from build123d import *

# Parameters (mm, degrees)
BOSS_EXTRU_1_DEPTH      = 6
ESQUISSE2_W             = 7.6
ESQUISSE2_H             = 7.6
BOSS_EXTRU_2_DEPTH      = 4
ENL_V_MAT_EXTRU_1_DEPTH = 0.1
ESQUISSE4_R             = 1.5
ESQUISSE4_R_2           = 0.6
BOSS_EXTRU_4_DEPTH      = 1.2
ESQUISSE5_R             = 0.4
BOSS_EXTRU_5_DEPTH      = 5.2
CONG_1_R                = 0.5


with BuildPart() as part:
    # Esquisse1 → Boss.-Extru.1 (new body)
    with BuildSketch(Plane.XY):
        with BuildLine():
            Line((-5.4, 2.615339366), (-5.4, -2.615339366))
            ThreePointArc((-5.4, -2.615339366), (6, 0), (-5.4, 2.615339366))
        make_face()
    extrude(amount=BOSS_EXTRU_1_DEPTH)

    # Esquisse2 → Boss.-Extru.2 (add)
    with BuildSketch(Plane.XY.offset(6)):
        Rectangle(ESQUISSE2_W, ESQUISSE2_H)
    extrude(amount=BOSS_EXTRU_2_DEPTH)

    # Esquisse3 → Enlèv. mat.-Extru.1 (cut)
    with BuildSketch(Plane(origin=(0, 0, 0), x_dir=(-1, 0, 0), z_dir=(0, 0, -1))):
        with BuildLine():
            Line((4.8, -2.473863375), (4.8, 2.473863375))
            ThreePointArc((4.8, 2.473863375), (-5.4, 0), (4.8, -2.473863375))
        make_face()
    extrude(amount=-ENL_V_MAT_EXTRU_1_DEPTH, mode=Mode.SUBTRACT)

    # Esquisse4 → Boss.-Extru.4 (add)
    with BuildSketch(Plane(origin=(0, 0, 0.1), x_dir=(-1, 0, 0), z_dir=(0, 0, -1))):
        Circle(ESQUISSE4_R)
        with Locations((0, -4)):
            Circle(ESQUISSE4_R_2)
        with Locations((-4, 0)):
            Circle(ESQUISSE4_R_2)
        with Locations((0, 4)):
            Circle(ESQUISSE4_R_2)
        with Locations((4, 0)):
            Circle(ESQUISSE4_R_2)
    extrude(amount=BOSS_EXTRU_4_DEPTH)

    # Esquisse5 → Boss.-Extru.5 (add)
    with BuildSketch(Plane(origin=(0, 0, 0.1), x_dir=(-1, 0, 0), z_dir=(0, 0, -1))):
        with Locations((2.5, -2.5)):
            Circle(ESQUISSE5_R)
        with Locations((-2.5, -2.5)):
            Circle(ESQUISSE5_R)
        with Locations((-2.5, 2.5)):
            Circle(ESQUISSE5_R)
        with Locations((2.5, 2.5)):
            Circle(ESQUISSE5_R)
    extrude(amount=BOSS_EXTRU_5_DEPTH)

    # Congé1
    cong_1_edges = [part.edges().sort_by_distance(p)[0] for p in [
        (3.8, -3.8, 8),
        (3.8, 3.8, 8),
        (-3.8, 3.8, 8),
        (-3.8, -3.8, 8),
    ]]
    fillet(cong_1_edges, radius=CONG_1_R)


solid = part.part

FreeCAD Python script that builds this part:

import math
import FreeCAD as App
import Part
import Sketcher
from FreeCAD import Vector
Q = App.Units.Quantity


def edges_at(feature, points):
    """Names of the edges that pass closest to the given points."""
    edges = feature.Shape.Edges
    near = lambda p: min(range(len(edges)), key=lambda i: edges[i].distToShape(Part.Vertex(*p))[0])
    return sorted({f"Edge{near(p) + 1}" for p in points})

doc = App.newDocument("Part")
params = doc.addObject("Spreadsheet::Sheet", "Params")
for row, (alias, value) in enumerate([
    ("sketch1_radius", "6 mm"),
    ("pad1_length", "6 mm"),
    ("sketch2_width", "7.6 mm"),
    ("pad2_length", "4 mm"),
    ("sketch3_radius", "5.4 mm"),
    ("pocket1_length", "0.1 mm"),
    ("sketch4_diameter", "3 mm"),
    ("sketch4_diameter2", "1.2 mm"),
    ("pad3_length", "1.2 mm"),
    ("sketch5_diameter", "0.8 mm"),
    ("pad4_length", "5.2 mm"),
    ("fillet_radius", "0.5 mm"),
], start=1):
    params.set(f"A{row}", alias)
    params.set(f"B{row}", "=" + value)
    params.setAlias(f"B{row}", alias)

body = doc.addObject("PartDesign::Body", "Body")

# Sketch on XY plane
sketch1 = body.newObject("Sketcher::SketchObject", "Sketch")
sketch1.AttachmentSupport = (doc.getObject("XY_Plane"), [""])
sketch1.MapMode = "FlatFace"
sketch1.addGeometry([
    Part.LineSegment(Vector(-5, 3, 0), Vector(-5, -3, 0)),
    Part.ArcOfCircle(Part.Circle(Vector(0, 0, 0), Vector(0, 0, 1), 6), math.radians(-154), math.radians(154)),
], False)
sketch1.addConstraint([
    Sketcher.Constraint("Coincident", 0, 1, 1, 2),
    Sketcher.Constraint("Coincident", 1, 1, 0, 2),
    Sketcher.Constraint("Vertical", 0),
    Sketcher.Constraint("Coincident", 1, 3, -1, 1),
    Sketcher.Constraint("Radius", 1, Q("6 mm")),
    Sketcher.Constraint("DistanceX", 0, 1, -1, 1, Q("5.4 mm")),
])
sketch1.setExpression("Constraints[4]", "Params.sketch1_radius")
pad1 = body.newObject("PartDesign::Pad", "Pad")
pad1.Profile = sketch1
pad1.setExpression("Length", "Params.pad1_length")

# Sketch on XY plane
sketch2 = body.newObject("Sketcher::SketchObject", "Sketch001")
sketch2.AttachmentSupport = (doc.getObject("XY_Plane"), [""])
sketch2.MapMode = "FlatFace"
sketch2.AttachmentOffset = App.Placement(Vector(0, 0, 6), App.Rotation())
sketch2.addGeometry([
    Part.LineSegment(Vector(-4, 4, 0), Vector(-4, -4, 0)),
    Part.LineSegment(Vector(-4, -4, 0), Vector(4, -4, 0)),
    Part.LineSegment(Vector(4, -4, 0), Vector(4, 4, 0)),
    Part.LineSegment(Vector(4, 4, 0), Vector(-4, 4, 0)),
], False)
sketch2.addConstraint([
    Sketcher.Constraint("Coincident", 0, 2, 1, 1),
    Sketcher.Constraint("Coincident", 1, 2, 2, 1),
    Sketcher.Constraint("Coincident", 2, 2, 3, 1),
    Sketcher.Constraint("Coincident", 3, 2, 0, 1),
    Sketcher.Constraint("Vertical", 0),
    Sketcher.Constraint("Horizontal", 1),
    Sketcher.Constraint("Vertical", 2),
    Sketcher.Constraint("Horizontal", 3),
    Sketcher.Constraint("Symmetric", 0, 2, 2, 2, -1, 1),
    Sketcher.Constraint("Equal", 3, 0),
    Sketcher.Constraint("DistanceX", 1, 1, 1, 2, Q("7.6 mm")),
])
sketch2.setExpression("Constraints[10]", "Params.sketch2_width")
pad2 = body.newObject("PartDesign::Pad", "Pad001")
pad2.Profile = sketch2
pad2.setExpression("Length", "Params.pad2_length")

# Sketch on XY plane
sketch3 = body.newObject("Sketcher::SketchObject", "Sketch002")
sketch3.AttachmentSupport = (doc.getObject("XY_Plane"), [""])
sketch3.MapMode = "FlatFace"
sketch3.addGeometry([
    Part.LineSegment(Vector(-4.8, -2.5, 0), Vector(-4.8, 2.5, 0)),
    Part.ArcOfCircle(Part.Circle(Vector(0, 0, 0), Vector(0, 0, 1), 5.4), math.radians(-153), math.radians(153)),
], False)
sketch3.addConstraint([
    Sketcher.Constraint("Coincident", 0, 1, 1, 1),
    Sketcher.Constraint("Coincident", 1, 2, 0, 2),
    Sketcher.Constraint("Vertical", 0),
    Sketcher.Constraint("Coincident", 1, 3, -1, 1),
    Sketcher.Constraint("Radius", 1, Q("5.4 mm")),
    Sketcher.Constraint("DistanceX", 0, 1, -1, 1, Q("4.8 mm")),
])
sketch3.setExpression("Constraints[4]", "Params.sketch3_radius")
pocket1 = body.newObject("PartDesign::Pocket", "Pocket")
pocket1.Profile = sketch3
pocket1.setExpression("Length", "Params.pocket1_length")
pocket1.Reversed = True

# Sketch on XY plane
sketch4 = body.newObject("Sketcher::SketchObject", "Sketch003")
sketch4.AttachmentSupport = (doc.getObject("XY_Plane"), [""])
sketch4.MapMode = "FlatFace"
sketch4.AttachmentOffset = App.Placement(Vector(0, 0, 0.1), App.Rotation())
sketch4.addGeometry([
    Part.Circle(Vector(0, 0, 0), Vector(0, 0, 1), 1.5),  # 0
    Part.Circle(Vector(0, -4, 0), Vector(0, 0, 1), 0.6),  # 1
    Part.Circle(Vector(4, 0, 0), Vector(0, 0, 1), 0.6),  # 2
    Part.Circle(Vector(0, 4, 0), Vector(0, 0, 1), 0.6),  # 3
    Part.Circle(Vector(-4, 0, 0), Vector(0, 0, 1), 0.6),  # 4
], False)
sketch4.addConstraint([
    Sketcher.Constraint("Coincident", 0, 3, -1, 1),
    Sketcher.Constraint("Equal", 1, 2),
    Sketcher.Constraint("Equal", 2, 3),
    Sketcher.Constraint("Equal", 3, 4),
    Sketcher.Constraint("Symmetric", 1, 3, 3, 3, -1, 1),
    Sketcher.Constraint("Symmetric", 2, 3, 4, 3, -1, 1),
    Sketcher.Constraint("PointOnObject", 1, 3, -2),
    Sketcher.Constraint("PointOnObject", 2, 3, -1),
    Sketcher.Constraint("Diameter", 0, Q("3 mm")),
    Sketcher.Constraint("Diameter", 1, Q("1.2 mm")),
    Sketcher.Constraint("DistanceY", 1, 3, -1, 1, Q("4 mm")),
    Sketcher.Constraint("DistanceX", -1, 1, 2, 3, Q("4 mm")),
])
sketch4.setExpression("Constraints[8]", "Params.sketch4_diameter")
sketch4.setExpression("Constraints[9]", "Params.sketch4_diameter2")
pad3 = body.newObject("PartDesign::Pad", "Pad002")
pad3.Profile = sketch4
pad3.setExpression("Length", "Params.pad3_length")
pad3.Reversed = True

# Sketch on XY plane
sketch5 = body.newObject("Sketcher::SketchObject", "Sketch004")
sketch5.AttachmentSupport = (doc.getObject("XY_Plane"), [""])
sketch5.MapMode = "FlatFace"
sketch5.AttachmentOffset = App.Placement(Vector(0, 0, 0.1), App.Rotation())
sketch5.addGeometry([
    Part.Circle(Vector(-2.5, -2.5, 0), Vector(0, 0, 1), 0.4),
    Part.Circle(Vector(2.5, -2.5, 0), Vector(0, 0, 1), 0.4),
    Part.Circle(Vector(2.5, 2.5, 0), Vector(0, 0, 1), 0.4),
    Part.Circle(Vector(-2.5, 2.5, 0), Vector(0, 0, 1), 0.4),
], False)
sketch5.addConstraint([
    Sketcher.Constraint("Equal", 0, 1),
    Sketcher.Constraint("Equal", 1, 2),
    Sketcher.Constraint("Equal", 2, 3),
    Sketcher.Constraint("Symmetric", 0, 3, 2, 3, -1, 1),
    Sketcher.Constraint("Symmetric", 1, 3, 3, 3, -1, 1),
    Sketcher.Constraint("Symmetric", 0, 3, 1, 3, -2),
    Sketcher.Constraint("Diameter", 0, Q("0.8 mm")),
    Sketcher.Constraint("DistanceX", 0, 3, 1, 3, Q("5 mm")),
    Sketcher.Constraint("DistanceY", 1, 3, 2, 3, Q("5 mm")),
])
sketch5.setExpression("Constraints[6]", "Params.sketch5_diameter")
pad4 = body.newObject("PartDesign::Pad", "Pad003")
pad4.Profile = sketch5
pad4.setExpression("Length", "Params.pad4_length")
pad4.Reversed = True
doc.recompute()

fillet = body.newObject("PartDesign::Fillet", "Fillet")
fillet.Base = (pad4, edges_at(pad4, [
    (3.8, -3.8, 8),
    (3.8, 3.8, 8),
    (-3.8, 3.8, 8),
    (-3.8, -3.8, 8),
]))
fillet.setExpression("Radius", "Params.fillet_radius")

doc.recompute()
